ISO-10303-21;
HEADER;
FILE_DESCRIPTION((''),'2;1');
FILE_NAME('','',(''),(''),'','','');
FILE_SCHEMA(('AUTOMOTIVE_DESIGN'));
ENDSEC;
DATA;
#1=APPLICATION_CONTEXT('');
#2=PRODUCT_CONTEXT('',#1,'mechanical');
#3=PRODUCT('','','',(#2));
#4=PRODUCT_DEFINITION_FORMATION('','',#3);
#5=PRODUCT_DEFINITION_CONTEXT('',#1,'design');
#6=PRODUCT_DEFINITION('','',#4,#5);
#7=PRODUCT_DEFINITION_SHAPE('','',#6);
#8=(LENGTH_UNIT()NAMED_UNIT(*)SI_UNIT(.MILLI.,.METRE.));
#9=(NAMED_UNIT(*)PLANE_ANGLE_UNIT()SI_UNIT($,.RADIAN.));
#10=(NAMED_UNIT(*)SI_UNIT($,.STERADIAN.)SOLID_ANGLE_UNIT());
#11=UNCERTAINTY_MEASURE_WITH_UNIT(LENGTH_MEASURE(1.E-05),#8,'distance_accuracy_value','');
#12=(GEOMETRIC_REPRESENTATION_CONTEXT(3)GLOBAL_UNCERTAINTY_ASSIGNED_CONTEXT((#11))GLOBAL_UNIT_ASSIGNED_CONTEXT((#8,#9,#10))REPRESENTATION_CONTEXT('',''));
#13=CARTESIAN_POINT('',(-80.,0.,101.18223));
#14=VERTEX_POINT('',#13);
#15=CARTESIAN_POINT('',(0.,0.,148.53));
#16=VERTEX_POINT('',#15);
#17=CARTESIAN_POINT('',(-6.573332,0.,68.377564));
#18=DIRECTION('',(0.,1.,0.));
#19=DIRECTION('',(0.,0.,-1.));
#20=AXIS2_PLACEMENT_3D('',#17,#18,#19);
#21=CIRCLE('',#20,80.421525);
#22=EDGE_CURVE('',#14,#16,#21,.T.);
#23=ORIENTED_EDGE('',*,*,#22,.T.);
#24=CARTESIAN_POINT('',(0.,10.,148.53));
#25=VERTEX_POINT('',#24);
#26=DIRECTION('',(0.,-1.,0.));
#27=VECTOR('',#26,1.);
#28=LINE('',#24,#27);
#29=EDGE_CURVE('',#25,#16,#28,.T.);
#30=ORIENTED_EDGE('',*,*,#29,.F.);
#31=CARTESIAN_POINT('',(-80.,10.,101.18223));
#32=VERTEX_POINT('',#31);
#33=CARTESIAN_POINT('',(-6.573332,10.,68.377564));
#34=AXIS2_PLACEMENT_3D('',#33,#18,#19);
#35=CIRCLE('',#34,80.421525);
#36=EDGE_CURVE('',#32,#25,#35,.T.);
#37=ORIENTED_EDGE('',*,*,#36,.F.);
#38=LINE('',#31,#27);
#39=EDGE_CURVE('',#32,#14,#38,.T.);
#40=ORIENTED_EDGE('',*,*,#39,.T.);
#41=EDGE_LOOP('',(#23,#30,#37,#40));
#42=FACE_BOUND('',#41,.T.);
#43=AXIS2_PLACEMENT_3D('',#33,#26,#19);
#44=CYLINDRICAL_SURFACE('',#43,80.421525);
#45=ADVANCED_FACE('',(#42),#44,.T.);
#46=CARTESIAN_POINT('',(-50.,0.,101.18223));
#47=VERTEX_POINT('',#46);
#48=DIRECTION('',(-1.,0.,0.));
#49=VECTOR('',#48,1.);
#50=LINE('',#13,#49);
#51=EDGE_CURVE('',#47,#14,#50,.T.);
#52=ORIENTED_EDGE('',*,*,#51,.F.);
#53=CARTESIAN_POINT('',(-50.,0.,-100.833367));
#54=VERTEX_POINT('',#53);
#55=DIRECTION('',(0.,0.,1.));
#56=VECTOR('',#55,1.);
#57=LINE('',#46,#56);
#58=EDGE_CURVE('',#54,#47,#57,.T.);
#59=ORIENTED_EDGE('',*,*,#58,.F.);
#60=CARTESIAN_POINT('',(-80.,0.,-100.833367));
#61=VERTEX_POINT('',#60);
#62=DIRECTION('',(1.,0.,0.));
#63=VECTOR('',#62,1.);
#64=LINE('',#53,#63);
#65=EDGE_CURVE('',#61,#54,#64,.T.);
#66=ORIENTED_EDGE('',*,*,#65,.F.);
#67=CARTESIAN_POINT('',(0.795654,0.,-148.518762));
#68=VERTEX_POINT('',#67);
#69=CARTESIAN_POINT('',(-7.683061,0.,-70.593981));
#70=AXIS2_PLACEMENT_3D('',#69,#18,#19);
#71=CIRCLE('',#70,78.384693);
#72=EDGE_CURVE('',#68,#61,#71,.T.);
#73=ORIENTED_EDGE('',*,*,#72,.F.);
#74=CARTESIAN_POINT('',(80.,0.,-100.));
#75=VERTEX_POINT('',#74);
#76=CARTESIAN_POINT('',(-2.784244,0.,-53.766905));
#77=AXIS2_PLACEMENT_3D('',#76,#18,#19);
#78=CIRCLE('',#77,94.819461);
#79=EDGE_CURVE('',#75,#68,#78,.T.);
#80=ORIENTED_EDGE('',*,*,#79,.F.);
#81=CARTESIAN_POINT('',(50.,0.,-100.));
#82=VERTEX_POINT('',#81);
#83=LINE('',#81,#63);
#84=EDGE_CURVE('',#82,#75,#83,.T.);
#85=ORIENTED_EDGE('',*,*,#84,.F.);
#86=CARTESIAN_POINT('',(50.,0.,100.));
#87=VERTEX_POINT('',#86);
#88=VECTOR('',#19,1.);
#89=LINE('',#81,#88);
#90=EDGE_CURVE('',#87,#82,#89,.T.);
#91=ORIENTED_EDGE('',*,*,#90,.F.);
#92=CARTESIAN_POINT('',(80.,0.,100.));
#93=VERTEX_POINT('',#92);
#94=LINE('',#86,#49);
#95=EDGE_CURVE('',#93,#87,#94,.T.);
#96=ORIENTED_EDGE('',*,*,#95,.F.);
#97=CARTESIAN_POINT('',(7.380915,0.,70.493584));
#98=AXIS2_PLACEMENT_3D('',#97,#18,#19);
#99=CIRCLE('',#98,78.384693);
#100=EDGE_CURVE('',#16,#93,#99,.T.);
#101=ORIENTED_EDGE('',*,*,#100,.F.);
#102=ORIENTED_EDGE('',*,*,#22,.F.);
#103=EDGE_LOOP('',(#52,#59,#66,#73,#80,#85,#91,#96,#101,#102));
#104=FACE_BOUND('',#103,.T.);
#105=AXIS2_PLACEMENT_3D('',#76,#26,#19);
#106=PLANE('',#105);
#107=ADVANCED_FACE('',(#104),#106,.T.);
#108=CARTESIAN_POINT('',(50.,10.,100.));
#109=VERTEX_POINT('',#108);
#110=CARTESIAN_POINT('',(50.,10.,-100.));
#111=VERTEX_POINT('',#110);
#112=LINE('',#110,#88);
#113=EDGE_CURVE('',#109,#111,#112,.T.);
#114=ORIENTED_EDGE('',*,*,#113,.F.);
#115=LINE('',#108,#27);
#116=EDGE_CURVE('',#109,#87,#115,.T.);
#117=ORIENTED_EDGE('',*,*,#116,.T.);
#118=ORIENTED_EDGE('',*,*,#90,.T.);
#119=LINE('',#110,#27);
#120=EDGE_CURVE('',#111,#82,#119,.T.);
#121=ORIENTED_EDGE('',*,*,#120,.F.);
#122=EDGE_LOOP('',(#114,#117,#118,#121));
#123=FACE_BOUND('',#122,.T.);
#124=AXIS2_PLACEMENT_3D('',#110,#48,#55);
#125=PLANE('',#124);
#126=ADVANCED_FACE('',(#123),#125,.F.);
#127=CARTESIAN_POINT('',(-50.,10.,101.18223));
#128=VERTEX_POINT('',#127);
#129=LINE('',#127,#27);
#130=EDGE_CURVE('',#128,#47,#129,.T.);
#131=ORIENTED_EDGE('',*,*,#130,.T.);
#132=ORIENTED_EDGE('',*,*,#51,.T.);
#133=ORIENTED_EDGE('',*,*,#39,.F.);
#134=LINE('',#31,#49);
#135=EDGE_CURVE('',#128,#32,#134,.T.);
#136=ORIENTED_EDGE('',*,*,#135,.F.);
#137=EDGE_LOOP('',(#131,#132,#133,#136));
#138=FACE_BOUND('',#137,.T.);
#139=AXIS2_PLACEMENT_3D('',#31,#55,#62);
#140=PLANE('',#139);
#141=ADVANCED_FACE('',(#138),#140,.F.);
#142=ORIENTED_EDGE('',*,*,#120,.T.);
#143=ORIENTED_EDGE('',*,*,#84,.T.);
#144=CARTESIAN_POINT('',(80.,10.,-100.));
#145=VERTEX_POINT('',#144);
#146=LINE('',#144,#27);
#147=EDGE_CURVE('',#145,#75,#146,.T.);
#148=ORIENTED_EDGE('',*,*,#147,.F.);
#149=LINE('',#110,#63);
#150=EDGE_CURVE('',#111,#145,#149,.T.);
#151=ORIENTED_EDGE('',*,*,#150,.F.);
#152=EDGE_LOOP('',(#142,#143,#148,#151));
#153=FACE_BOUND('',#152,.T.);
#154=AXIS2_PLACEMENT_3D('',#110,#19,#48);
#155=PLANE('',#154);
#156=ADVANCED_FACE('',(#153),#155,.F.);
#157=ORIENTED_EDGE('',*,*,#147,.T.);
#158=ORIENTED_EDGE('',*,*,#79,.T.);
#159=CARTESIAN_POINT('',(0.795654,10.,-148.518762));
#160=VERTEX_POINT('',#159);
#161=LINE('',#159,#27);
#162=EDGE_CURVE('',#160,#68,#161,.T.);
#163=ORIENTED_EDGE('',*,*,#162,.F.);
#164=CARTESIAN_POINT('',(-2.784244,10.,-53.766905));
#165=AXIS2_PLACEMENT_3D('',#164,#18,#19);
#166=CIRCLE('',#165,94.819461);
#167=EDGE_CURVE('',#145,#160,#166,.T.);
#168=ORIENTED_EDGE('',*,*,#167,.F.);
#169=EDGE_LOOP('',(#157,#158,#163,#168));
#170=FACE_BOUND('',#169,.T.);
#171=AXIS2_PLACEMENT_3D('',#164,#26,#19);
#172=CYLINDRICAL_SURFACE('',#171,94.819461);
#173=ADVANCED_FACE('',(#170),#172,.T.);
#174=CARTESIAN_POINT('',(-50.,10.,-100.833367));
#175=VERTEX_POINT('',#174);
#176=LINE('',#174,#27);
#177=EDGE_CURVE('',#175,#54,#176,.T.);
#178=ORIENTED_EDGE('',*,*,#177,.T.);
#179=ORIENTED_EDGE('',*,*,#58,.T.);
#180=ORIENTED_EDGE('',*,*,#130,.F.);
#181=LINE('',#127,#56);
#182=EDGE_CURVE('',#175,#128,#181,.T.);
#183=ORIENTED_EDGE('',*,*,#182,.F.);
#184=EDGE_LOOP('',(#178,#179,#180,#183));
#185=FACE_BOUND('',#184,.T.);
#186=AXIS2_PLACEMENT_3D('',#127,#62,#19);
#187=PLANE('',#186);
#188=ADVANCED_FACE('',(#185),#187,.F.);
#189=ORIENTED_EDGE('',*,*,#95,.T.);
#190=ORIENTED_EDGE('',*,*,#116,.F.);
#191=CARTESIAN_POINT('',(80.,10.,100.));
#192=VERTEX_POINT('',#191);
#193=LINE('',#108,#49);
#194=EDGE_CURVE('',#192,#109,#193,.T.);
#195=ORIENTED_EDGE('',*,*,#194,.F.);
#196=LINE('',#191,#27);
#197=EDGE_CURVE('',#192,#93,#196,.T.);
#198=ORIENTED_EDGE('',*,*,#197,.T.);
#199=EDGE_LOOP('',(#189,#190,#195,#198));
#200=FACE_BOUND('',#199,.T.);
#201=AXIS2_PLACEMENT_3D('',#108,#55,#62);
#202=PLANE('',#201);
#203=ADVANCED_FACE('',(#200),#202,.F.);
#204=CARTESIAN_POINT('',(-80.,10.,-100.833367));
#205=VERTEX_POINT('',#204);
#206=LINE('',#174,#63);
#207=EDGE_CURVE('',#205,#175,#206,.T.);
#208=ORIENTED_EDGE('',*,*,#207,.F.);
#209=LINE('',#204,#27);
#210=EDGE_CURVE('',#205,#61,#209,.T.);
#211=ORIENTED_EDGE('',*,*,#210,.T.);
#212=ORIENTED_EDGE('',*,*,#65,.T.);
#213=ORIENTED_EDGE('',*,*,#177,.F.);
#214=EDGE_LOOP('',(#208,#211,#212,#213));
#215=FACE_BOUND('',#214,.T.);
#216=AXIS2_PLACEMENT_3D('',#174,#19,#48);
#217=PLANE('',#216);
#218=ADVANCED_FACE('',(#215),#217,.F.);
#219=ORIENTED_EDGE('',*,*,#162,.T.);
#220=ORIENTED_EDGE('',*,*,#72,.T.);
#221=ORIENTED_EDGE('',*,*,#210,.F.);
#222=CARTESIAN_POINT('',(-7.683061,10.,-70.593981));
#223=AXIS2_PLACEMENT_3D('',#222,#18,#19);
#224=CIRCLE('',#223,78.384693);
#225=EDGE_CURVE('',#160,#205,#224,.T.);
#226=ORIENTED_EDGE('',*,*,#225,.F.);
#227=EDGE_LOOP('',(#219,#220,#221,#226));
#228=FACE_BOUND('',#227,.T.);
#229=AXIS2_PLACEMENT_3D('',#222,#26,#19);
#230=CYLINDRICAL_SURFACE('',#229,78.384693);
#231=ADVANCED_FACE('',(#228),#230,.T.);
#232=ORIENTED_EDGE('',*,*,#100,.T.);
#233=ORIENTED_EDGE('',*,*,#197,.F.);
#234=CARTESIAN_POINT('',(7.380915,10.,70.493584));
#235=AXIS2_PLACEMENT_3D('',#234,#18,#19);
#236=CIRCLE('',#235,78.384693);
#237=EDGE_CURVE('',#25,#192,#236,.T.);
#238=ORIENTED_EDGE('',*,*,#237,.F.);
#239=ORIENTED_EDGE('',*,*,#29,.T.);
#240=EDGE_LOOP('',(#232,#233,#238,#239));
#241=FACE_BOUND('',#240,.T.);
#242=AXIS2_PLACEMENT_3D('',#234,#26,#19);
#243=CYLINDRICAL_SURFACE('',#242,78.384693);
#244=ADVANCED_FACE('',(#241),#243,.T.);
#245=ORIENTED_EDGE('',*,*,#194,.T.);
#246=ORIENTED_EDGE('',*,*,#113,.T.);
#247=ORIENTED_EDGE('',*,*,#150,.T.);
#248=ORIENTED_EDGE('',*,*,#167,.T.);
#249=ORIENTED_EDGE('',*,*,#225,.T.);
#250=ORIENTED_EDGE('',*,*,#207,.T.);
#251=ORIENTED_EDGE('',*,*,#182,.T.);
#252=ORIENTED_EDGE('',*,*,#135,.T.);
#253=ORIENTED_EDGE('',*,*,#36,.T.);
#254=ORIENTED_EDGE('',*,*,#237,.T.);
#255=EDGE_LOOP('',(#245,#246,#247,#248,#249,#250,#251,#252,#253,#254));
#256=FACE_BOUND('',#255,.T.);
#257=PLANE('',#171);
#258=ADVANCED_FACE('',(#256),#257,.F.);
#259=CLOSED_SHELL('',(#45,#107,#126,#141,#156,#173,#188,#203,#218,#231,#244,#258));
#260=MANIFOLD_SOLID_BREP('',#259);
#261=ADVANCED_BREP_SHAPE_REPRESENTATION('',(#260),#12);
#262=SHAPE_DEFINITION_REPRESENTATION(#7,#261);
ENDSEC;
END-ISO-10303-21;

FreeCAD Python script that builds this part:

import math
import FreeCAD as App
import Part
import Sketcher
from FreeCAD import Vector
Q = App.Units.Quantity

doc = App.newDocument("Part")
body = doc.addObject("PartDesign::Body", "Body")

# Sketch on XZ plane
sketch1 = body.newObject("Sketcher::SketchObject", "Sketch")
sketch1.AttachmentSupport = (doc.getObject("XZ_Plane"), [""])
sketch1.MapMode = "FlatFace"
sketch1.addGeometry([
    Part.LineSegment(Vector(50, 100, 0), Vector(50, -100, 0)),  # 0
    Part.LineSegment(Vector(50, -100, 0), Vector(80, -100, 0)),  # 1
    Part.ArcOfCircle(Part.Circle(Vector(-3, -54, 0), Vector(0, 0, 1), 95), math.radians(-88), math.radians(-29)),  # 2
    Part.ArcOfCircle(Part.Circle(Vector(-8, -71, 0), Vector(0, 0, 1), 78), math.radians(-157), math.radians(-84)),  # 3
    Part.LineSegment(Vector(-80, -101, 0), Vector(-50, -101, 0)),  # 4
    Part.LineSegment(Vector(-50, -101, 0), Vector(-50, 101, 0)),  # 5
    Part.LineSegment(Vector(-50, 101, 0), Vector(-80, 101, 0)),  # 6
    Part.ArcOfCircle(Part.Circle(Vector(-7, 68, 0), Vector(0, 0, 1), 80), math.radians(85), math.radians(156)),  # 7
    Part.ArcOfCircle(Part.Circle(Vector(7, 70, 0), Vector(0, 0, 1), 78), math.radians(22), math.radians(95)),  # 8
    Part.LineSegment(Vector(80, 100, 0), Vector(50, 100, 0)),  # 9
], False)
sketch1.addConstraint([
    Sketcher.Constraint("Coincident", 0, 2, 1, 1),
    Sketcher.Constraint("Coincident", 1, 2, 2, 2),
    Sketcher.Constraint("Coincident", 2, 1, 3, 2),
    Sketcher.Constraint("Coincident", 3, 1, 4, 1),
    Sketcher.Constraint("Coincident", 4, 2, 5, 1),
    Sketcher.Constraint("Coincident", 5, 2, 6, 1),
    Sketcher.Constraint("Coincident", 6, 2, 7, 2),
    Sketcher.Constraint("Coincident", 7, 1, 8, 2),
    Sketcher.Constraint("Coincident", 8, 1, 9, 1),
    Sketcher.Constraint("Coincident", 9, 2, 0, 1),
    Sketcher.Constraint("Vertical", 0),
    Sketcher.Constraint("Horizontal", 1),
    Sketcher.Constraint("Horizontal", 4),
    Sketcher.Constraint("Vertical", 5),
    Sketcher.Constraint("Horizontal", 6),
    Sketcher.Constraint("Horizontal", 9),
    Sketcher.Constraint("Equal", 3, 8),
    Sketcher.Constraint("Symmetric", 1, 2, 8, 1, -1),
    Sketcher.Constraint("PointOnObject", 7, 1, -2),
    Sketcher.Constraint("Vertical", 3, 1, 6, 2),
    Sketcher.Constraint("Equal", 1, 4),
    Sketcher.Constraint("DistanceX", 1, 1, 1, 2, Q("30 mm")),
    Sketcher.Constraint("DistanceY", 0, 2, 0, 1, Q("200 mm")),
    Sketcher.Constraint("DistanceX", -1, 1, 0, 2, Q("50 mm")),
    Sketcher.Constraint("DistanceX", 3, 1, -1, 1, Q("80 mm")),
    Sketcher.Constraint("DistanceY", -1, 1, 7, 1, Q("148.53 mm")),
    Sketcher.Constraint("Radius", 2, Q("94.819461 mm")),
    Sketcher.Constraint("Radius", 3, Q("78.384693 mm")),
    Sketcher.Constraint("Radius", 7, Q("80.421525 mm")),
    Sketcher.Constraint("DistanceX", 2, 3, 2, 1, Q("3.579898 mm")),
    Sketcher.Constraint("DistanceY", 5, 1, 5, 2, Q("202.015596 mm")),
    Sketcher.Constraint("DistanceX", 3, 3, -1, 1, Q("7.683061 mm")),
    Sketcher.Constraint("DistanceY", 3, 3, -1, 1, Q("70.593981 mm")),
])
pad1 = body.newObject("PartDesign::Pad", "Pad")
pad1.Profile = sketch1
pad1.Length = 10
pad1.Reversed = True

doc.recompute()
